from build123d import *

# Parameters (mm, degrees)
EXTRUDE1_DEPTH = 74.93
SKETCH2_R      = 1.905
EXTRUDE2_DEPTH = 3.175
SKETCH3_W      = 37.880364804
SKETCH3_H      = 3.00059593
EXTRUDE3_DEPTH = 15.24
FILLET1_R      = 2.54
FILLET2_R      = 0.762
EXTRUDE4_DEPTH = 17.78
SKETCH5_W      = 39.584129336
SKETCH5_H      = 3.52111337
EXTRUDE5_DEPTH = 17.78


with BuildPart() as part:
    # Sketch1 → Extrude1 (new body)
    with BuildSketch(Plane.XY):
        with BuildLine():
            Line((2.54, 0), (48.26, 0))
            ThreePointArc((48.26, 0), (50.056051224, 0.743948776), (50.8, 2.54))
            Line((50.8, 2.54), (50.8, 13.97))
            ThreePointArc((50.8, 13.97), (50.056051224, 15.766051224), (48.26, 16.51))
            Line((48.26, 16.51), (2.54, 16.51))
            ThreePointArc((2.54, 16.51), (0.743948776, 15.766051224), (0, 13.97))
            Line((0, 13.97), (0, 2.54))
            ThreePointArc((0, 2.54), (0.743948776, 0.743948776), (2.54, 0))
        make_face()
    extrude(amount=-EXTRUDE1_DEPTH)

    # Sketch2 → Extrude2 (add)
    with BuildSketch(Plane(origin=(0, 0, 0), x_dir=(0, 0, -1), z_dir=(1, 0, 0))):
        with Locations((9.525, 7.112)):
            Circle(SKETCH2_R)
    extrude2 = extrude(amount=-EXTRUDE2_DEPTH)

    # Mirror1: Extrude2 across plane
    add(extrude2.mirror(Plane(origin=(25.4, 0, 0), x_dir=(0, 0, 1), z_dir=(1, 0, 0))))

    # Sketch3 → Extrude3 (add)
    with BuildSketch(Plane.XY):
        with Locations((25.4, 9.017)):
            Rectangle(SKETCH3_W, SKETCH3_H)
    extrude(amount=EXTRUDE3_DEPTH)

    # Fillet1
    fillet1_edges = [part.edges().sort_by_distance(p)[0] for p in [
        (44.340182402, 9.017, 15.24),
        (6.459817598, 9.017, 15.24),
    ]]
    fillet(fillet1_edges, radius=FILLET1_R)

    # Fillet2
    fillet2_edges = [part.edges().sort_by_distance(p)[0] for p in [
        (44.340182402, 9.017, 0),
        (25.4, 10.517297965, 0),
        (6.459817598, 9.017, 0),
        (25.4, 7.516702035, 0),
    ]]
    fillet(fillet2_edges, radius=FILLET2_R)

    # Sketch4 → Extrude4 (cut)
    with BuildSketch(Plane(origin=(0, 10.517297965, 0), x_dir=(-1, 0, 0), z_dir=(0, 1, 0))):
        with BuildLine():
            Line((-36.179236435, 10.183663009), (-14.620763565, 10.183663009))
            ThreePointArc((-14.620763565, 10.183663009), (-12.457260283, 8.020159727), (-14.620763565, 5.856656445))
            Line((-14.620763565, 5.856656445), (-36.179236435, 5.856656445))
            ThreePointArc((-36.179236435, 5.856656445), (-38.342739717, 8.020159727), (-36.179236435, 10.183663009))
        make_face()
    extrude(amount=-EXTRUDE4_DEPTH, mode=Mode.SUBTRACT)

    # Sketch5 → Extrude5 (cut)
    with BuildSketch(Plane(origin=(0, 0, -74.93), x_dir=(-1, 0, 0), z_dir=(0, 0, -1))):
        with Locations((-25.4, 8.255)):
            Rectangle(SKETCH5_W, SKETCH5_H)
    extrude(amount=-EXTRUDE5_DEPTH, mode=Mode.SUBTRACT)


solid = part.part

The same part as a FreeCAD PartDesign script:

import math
import FreeCAD as App
import Part
import Sketcher
from FreeCAD import Vector
Q = App.Units.Quantity


def edges_at(feature, points):
    """Names of the edges that pass closest to the given points."""
    edges = feature.Shape.Edges
    near = lambda p: min(range(len(edges)), key=lambda i: edges[i].distToShape(Part.Vertex(*p))[0])
    return sorted({f"Edge{near(p) + 1}" for p in points})

doc = App.newDocument("Part")
body = doc.addObject("PartDesign::Body", "Body")

sketch1 = body.newObject("Sketcher::SketchObject", "Sketch")
sketch1.AttachmentSupport = (doc.getObject("XY_Plane"), [""])
sketch1.MapMode = "FlatFace"
sketch1.addGeometry([
    Part.LineSegment(Vector(2.5, 0, 0), Vector(48.3, 0, 0)),
    Part.ArcOfCircle(Part.Circle(Vector(48.3, 2.5, 0), Vector(0, 0, 1), 2.5), math.radians(-90), math.radians(0)),
    Part.LineSegment(Vector(50.8, 2.5, 0), Vector(50.8, 14, 0)),
    Part.ArcOfCircle(Part.Circle(Vector(48.3, 14, 0), Vector(0, 0, 1), 2.5), math.radians(0), math.radians(90)),
    Part.LineSegment(Vector(48.3, 16.5, 0), Vector(2.5, 16.5, 0)),
    Part.ArcOfCircle(Part.Circle(Vector(2.5, 14, 0), Vector(0, 0, 1), 2.5), math.radians(90), math.radians(180)),
    Part.LineSegment(Vector(0, 14, 0), Vector(0, 2.5, 0)),
    Part.ArcOfCircle(Part.Circle(Vector(2.5, 2.5, 0), Vector(0, 0, 1), 2.5), math.radians(-180), math.radians(-90)),
], False)
sketch1.addConstraint([
    Sketcher.Constraint("Tangent", 0, 2, 1, 1),
    Sketcher.Constraint("Tangent", 1, 2, 2, 1),
    Sketcher.Constraint("Tangent", 2, 2, 3, 1),
    Sketcher.Constraint("Tangent", 3, 2, 4, 1),
    Sketcher.Constraint("Tangent", 4, 2, 5, 1),
    Sketcher.Constraint("Tangent", 5, 2, 6, 1),
    Sketcher.Constraint("Tangent", 6, 2, 7, 1),
    Sketcher.Constraint("Tangent", 7, 2, 0, 1),
    Sketcher.Constraint("Horizontal", 0),
    Sketcher.Constraint("Vertical", 2),
    Sketcher.Constraint("Horizontal", 4),
    Sketcher.Constraint("Vertical", 6),
    Sketcher.Constraint("Equal", 1, 3),
    Sketcher.Constraint("Equal", 3, 5),
    Sketcher.Constraint("Equal", 5, 7),
    Sketcher.Constraint("PointOnObject", 0, 2, -1),
    Sketcher.Constraint("PointOnObject", 5, 2, -2),
    Sketcher.Constraint("Radius", 1, Q("0.1 in")),
    Sketcher.Constraint("DistanceX", 0, 1, 0, 2, Q("1.8 in")),
    Sketcher.Constraint("DistanceY", 2, 1, 2, 2, Q("0.45 in")),
])
pad1 = body.newObject("PartDesign::Pad", "Pad")
pad1.Profile = sketch1
pad1.Length = Q("2.95 in")
pad1.Reversed = True

sketch2 = body.newObject("Sketcher::SketchObject", "Sketch001")
sketch2.AttachmentSupport = (doc.getObject("YZ_Plane"), [""])
sketch2.MapMode = "FlatFace"
sketch2.addGeometry(Part.Circle(Vector(7.1, -9.5, 0), Vector(0, 0, 1), 1.9), False)
sketch2.addConstraint([
    Sketcher.Constraint("Diameter", 0, Q("0.15 in")),
    Sketcher.Constraint("DistanceX", -1, 1, 0, 3, Q("0.28 in")),
    Sketcher.Constraint("DistanceY", 0, 3, -1, 1, Q("0.375 in")),
])
pad2 = body.newObject("PartDesign::Pad", "Pad001")
pad2.Profile = sketch2
pad2.Length = Q("0.125 in")
pad2.Reversed = True
doc.recompute()

datumplane = body.newObject("PartDesign::Plane", "DatumPlane")
datumplane.AttachmentSupport = (doc.getObject("YZ_Plane"), [""])
datumplane.MapMode = "FlatFace"
datumplane.AttachmentOffset = App.Placement(Vector(0, 0, 1 * 25.4), App.Rotation())
mirrored = body.newObject("PartDesign::Mirrored", "Mirrored")
mirrored.Originals = [pad2]
mirrored.MirrorPlane = (datumplane, [""])
body.Tip = mirrored

sketch3 = body.newObject("Sketcher::SketchObject", "Sketch002")
sketch3.AttachmentSupport = (doc.getObject("XY_Plane"), [""])
sketch3.MapMode = "FlatFace"
sketch3.addGeometry([
    Part.LineSegment(Vector(6.5, 10.5, 0), Vector(6.5, 7.5, 0)),
    Part.LineSegment(Vector(6.5, 7.5, 0), Vector(44.3, 7.5, 0)),
    Part.LineSegment(Vector(44.3, 7.5, 0), Vector(44.3, 10.5, 0)),
    Part.LineSegment(Vector(44.3, 10.5, 0), Vector(6.5, 10.5, 0)),
], False)
sketch3.addConstraint([
    Sketcher.Constraint("Coincident", 0, 2, 1, 1),
    Sketcher.Constraint("Coincident", 1, 2, 2, 1),
    Sketcher.Constraint("Coincident", 2, 2, 3, 1),
    Sketcher.Constraint("Coincident", 3, 2, 0, 1),
    Sketcher.Constraint("Vertical", 0),
    Sketcher.Constraint("Horizontal", 1),
    Sketcher.Constraint("Vertical", 2),
    Sketcher.Constraint("Horizontal", 3),
    Sketcher.Constraint("DistanceX", 1, 1, 1, 2, 37.880365),
    Sketcher.Constraint("DistanceY", 0, 2, 0, 1, 3.000596),
    Sketcher.Constraint("DistanceX", -1, 1, 0, 2, 6.459818),
    Sketcher.Constraint("DistanceY", -1, 1, 0, 2, 7.516702),
])
pad3 = body.newObject("PartDesign::Pad", "Pad002")
pad3.Profile = sketch3
pad3.Length = Q("0.6 in")
doc.recompute()

fillet = body.newObject("PartDesign::Fillet", "Fillet")
fillet.Base = (pad3, edges_at(pad3, [(44.34, 9.017, 15.24), (6.46, 9.017, 15.24)]))
fillet.Radius = Q("0.1 in")
doc.recompute()

fillet2 = body.newObject("PartDesign::Fillet", "Fillet001")
fillet2.Base = (fillet, edges_at(fillet, [
    (44.34, 9.017, 0),
    (25.4, 10.517, 0),
    (6.46, 9.017, 0),
    (25.4, 7.517, 0),
]))
fillet2.Radius = Q("0.03 in")

sketch4 = body.newObject("Sketcher::SketchObject", "Sketch003")
sketch4.AttachmentSupport = (doc.getObject("XZ_Plane"), [""])
sketch4.MapMode = "FlatFace"
sketch4.AttachmentOffset = App.Placement(Vector(0, 0, -10.517298), App.Rotation())
sketch4.addGeometry([
    Part.LineSegment(Vector(14.6, 10.2, 0), Vector(36.2, 10.2, 0)),
    Part.ArcOfCircle(Part.Circle(Vector(36.2, 8, 0), Vector(0, 0, 1), 2.2), math.radians(-90), math.radians(90)),
    Part.LineSegment(Vector(36.2, 5.9, 0), Vector(14.6, 5.9, 0)),
    Part.ArcOfCircle(Part.Circle(Vector(14.6, 8, 0), Vector(0, 0, 1), 2.2), math.radians(90), math.radians(270)),
], False)
sketch4.addConstraint([
    Sketcher.Constraint("Tangent", 0, 2, 1, 2),
    Sketcher.Constraint("Tangent", 1, 1, 2, 1),
    Sketcher.Constraint("Tangent", 2, 2, 3, 2),
    Sketcher.Constraint("Tangent", 3, 1, 0, 1),
    Sketcher.Constraint("Horizontal", 0),
    Sketcher.Constraint("Horizontal", 2),
    Sketcher.Constraint("Radius", 1, 2.163503),
    Sketcher.Constraint("DistanceX", 0, 1, 0, 2, 21.558473),
    Sketcher.Constraint("DistanceY", -1, 1, 1, 3, 8.02016),
    Sketcher.Constraint("DistanceX", -1, 1, 1, 3, 36.179236),
])
pocket1 = body.newObject("PartDesign::Pocket", "Pocket")
pocket1.Profile = sketch4
pocket1.Length = Q("0.7 in")
pocket1.Reversed = True

sketch5 = body.newObject("Sketcher::SketchObject", "Sketch004")
sketch5.AttachmentSupport = (doc.getObject("XY_Plane"), [""])
sketch5.MapMode = "FlatFace"
sketch5.AttachmentOffset = App.Placement(Vector(0, 0, -2.95 * 25.4), App.Rotation())
sketch5.addGeometry([
    Part.LineSegment(Vector(45.2, 10, 0), Vector(45.2, 6.5, 0)),
    Part.LineSegment(Vector(45.2, 6.5, 0), Vector(5.6, 6.5, 0)),
    Part.LineSegment(Vector(5.6, 6.5, 0), Vector(5.6, 10, 0)),
    Part.LineSegment(Vector(5.6, 10, 0), Vector(45.2, 10, 0)),
], False)
sketch5.addConstraint([
    Sketcher.Constraint("Coincident", 0, 2, 1, 1),
    Sketcher.Constraint("Coincident", 1, 2, 2, 1),
    Sketcher.Constraint("Coincident", 2, 2, 3, 1),
    Sketcher.Constraint("Coincident", 3, 2, 0, 1),
    Sketcher.Constraint("Vertical", 0),
    Sketcher.Constraint("Horizontal", 1),
    Sketcher.Constraint("Vertical", 2),
    Sketcher.Constraint("Horizontal", 3),
    Sketcher.Constraint("DistanceX", 1, 2, 1, 1, 39.584129),
    Sketcher.Constraint("DistanceY", 0, 2, 0, 1, 3.521113),
    Sketcher.Constraint("DistanceX", -1, 1, 0, 2, 45.192065),
    Sketcher.Constraint("DistanceY", -1, 1, 0, 2, 6.494443),
])
pocket2 = body.newObject("PartDesign::Pocket", "Pocket001")
pocket2.Profile = sketch5
pocket2.Length = Q("0.7 in")
pocket2.Reversed = True

doc.recompute()
